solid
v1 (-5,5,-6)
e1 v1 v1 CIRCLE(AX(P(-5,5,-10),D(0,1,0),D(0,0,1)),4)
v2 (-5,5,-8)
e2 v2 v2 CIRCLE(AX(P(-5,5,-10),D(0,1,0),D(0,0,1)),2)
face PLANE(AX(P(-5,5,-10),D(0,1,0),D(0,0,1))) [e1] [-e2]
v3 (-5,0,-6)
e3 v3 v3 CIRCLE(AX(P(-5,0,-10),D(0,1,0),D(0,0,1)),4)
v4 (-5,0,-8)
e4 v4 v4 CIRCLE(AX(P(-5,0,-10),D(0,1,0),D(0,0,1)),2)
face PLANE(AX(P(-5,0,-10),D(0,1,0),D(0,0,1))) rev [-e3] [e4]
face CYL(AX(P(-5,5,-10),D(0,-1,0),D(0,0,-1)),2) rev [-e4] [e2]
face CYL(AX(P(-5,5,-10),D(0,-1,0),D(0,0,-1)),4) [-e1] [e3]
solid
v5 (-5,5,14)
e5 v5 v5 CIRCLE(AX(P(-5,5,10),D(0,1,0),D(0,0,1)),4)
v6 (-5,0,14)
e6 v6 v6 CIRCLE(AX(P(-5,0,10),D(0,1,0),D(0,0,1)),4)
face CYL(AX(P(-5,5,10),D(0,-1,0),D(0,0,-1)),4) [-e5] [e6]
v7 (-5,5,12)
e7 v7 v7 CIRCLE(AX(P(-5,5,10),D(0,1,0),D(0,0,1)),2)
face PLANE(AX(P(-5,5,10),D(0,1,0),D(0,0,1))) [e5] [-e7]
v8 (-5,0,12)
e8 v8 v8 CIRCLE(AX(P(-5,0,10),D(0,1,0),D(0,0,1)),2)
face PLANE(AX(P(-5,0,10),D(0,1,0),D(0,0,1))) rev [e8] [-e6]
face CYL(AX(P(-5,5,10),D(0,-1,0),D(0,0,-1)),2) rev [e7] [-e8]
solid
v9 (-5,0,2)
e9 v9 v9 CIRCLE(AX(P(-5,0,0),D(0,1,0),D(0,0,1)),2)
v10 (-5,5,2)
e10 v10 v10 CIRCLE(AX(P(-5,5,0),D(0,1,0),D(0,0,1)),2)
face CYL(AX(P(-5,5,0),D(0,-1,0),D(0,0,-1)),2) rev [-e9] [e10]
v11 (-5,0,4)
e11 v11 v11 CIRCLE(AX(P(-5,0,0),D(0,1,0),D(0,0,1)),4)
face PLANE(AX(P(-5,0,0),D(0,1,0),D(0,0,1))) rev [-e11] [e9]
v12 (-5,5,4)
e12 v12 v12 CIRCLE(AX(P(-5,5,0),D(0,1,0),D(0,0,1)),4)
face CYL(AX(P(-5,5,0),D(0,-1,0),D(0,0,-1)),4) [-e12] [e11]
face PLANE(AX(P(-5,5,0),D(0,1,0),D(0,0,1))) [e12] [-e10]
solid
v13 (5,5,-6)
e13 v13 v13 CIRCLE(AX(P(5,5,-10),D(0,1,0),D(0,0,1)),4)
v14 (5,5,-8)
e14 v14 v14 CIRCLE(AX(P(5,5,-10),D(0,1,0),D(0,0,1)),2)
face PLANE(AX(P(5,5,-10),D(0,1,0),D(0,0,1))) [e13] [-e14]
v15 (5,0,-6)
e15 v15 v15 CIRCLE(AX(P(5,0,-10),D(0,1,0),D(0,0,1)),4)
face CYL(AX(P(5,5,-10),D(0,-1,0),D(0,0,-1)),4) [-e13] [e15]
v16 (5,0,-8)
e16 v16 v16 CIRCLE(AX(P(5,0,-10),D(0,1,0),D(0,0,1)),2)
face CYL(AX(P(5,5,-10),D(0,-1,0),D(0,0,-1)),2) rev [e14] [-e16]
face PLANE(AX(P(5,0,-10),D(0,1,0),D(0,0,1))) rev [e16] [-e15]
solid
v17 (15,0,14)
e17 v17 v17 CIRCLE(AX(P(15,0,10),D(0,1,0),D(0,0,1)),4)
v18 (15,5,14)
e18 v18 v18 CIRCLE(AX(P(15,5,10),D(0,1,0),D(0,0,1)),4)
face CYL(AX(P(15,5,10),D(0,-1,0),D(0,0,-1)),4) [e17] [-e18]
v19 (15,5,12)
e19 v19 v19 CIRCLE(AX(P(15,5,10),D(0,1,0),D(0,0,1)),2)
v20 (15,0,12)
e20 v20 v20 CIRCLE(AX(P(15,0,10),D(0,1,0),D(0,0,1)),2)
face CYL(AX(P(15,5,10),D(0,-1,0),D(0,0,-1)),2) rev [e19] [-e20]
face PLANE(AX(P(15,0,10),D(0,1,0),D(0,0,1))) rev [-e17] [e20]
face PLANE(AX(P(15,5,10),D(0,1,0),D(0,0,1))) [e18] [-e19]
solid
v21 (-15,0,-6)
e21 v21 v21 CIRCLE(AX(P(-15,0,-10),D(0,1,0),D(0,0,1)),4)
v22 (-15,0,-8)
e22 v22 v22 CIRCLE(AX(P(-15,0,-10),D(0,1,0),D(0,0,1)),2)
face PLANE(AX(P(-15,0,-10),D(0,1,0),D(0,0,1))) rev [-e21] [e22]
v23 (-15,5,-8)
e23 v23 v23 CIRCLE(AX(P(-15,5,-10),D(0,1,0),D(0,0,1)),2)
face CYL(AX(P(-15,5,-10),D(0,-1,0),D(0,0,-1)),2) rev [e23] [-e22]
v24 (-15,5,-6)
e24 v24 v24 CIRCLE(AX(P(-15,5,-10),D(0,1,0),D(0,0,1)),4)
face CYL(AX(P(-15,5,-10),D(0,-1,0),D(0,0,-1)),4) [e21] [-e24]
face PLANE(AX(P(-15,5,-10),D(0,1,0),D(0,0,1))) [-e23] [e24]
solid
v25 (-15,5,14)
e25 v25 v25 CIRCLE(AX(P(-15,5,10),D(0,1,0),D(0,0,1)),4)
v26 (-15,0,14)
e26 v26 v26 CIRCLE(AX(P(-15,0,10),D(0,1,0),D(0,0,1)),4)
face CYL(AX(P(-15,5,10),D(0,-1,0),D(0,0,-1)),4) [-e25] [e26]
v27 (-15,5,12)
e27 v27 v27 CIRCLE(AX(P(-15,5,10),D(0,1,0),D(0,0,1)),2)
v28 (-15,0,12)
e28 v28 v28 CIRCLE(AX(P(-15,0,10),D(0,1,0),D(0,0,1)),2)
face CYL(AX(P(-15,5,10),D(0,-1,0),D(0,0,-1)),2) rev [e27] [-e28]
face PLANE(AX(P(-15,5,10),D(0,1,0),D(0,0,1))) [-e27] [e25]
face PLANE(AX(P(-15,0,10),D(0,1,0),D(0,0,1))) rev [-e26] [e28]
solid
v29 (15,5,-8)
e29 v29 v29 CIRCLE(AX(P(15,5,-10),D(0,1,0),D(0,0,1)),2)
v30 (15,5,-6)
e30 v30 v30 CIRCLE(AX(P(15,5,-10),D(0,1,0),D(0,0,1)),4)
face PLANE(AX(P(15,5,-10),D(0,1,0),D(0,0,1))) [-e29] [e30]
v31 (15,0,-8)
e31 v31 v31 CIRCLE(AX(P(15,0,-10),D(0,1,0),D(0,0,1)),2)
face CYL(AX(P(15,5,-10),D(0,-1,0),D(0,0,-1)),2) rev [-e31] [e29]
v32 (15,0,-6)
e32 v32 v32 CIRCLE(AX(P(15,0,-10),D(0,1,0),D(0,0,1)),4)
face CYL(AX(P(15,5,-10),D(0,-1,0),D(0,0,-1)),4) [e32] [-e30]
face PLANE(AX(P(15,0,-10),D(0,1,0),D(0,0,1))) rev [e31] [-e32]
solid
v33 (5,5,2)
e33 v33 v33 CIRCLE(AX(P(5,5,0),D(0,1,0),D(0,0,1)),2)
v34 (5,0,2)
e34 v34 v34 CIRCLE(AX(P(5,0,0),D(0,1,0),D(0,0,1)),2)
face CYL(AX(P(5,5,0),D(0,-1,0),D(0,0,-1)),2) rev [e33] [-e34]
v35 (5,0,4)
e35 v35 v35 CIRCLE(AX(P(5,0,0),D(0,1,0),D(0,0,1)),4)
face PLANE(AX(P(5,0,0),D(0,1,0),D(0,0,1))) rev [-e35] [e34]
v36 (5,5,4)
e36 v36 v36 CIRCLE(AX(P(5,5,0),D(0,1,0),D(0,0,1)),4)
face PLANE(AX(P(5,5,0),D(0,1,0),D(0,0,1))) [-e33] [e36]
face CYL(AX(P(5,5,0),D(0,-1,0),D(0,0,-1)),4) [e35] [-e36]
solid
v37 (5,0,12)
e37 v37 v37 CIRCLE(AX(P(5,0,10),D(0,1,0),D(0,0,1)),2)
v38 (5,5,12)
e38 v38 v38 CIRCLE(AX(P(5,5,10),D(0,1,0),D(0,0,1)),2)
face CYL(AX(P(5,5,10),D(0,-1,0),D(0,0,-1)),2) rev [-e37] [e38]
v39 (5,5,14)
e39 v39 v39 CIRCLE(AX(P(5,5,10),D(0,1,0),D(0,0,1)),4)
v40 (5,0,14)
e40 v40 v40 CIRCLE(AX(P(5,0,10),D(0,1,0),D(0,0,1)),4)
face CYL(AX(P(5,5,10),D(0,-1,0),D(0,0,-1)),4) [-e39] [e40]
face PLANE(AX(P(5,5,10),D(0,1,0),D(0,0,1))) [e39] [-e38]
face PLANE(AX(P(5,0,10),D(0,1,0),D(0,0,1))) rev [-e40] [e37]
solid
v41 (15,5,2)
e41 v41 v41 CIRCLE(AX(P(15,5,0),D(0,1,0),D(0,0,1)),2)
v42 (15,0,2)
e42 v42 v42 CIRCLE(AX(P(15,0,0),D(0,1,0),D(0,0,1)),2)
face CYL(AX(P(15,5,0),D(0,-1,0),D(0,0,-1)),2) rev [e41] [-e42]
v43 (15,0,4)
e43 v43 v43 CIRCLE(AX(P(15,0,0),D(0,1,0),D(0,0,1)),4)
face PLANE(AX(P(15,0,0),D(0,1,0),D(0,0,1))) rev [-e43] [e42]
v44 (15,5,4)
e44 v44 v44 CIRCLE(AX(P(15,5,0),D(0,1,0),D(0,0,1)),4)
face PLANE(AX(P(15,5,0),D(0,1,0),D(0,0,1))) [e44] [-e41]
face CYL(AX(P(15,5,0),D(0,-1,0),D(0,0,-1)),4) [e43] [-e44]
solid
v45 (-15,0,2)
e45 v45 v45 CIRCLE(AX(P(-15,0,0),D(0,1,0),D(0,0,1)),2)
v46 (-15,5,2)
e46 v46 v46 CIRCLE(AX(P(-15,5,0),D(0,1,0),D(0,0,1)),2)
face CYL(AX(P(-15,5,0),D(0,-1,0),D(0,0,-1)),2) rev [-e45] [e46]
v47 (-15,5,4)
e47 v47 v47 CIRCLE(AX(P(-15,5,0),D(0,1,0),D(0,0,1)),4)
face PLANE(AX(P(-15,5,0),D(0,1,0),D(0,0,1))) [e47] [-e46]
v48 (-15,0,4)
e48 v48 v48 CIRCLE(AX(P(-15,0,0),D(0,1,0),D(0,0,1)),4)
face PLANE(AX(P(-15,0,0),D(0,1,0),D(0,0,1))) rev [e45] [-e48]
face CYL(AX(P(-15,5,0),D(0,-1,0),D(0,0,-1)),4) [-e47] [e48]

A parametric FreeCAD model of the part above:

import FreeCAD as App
import Part
import Sketcher
Q = App.Units.Quantity

doc = App.newDocument("Part")
body = doc.addObject("PartDesign::Body", "Body")

# Sketch on XZ plane
sketch1 = body.newObject("Sketcher::SketchObject", "Sketch")
sketch1.AttachmentSupport = (doc.getObject("XZ_Plane"), [""])
sketch1.MapMode = "FlatFace"
sketch1.addGeometry(Part.Circle(App.Vector(-15, 10, 0), App.Vector(0, 0, 1), 4), False)
sketch1.addGeometry(Part.Circle(App.Vector(-15, 10, 0), App.Vector(0, 0, 1), 2), False)
sketch1.addConstraint(Sketcher.Constraint("Coincident", 1, 3, 0, 3))
sketch1.addConstraint(Sketcher.Constraint("Diameter", 0, Q("8 mm")))
sketch1.addConstraint(Sketcher.Constraint("Diameter", 1, Q("4 mm")))
sketch1.addConstraint(Sketcher.Constraint("DistanceX", 0, 3, -1, 1, Q("15 mm")))
sketch1.addConstraint(Sketcher.Constraint("DistanceY", -1, 1, 0, 3, Q("10 mm")))
pad1 = body.newObject("PartDesign::Pad", "Pad")
pad1.Profile = sketch1
pad1.Length = 5
pad1.Reversed = True
body2 = doc.addObject("PartDesign::Body", "Body001")

# Sketch on XZ plane
sketch2 = body2.newObject("Sketcher::SketchObject", "Sketch001")
sketch2.AttachmentSupport = (doc.getObject("XZ_Plane001"), [""])
sketch2.MapMode = "FlatFace"
sketch2.addGeometry(Part.Circle(App.Vector(-5, 10, 0), App.Vector(0, 0, 1), 4), False)
sketch2.addGeometry(Part.Circle(App.Vector(-5, 10, 0), App.Vector(0, 0, 1), 2), False)
sketch2.addConstraint(Sketcher.Constraint("Coincident", 1, 3, 0, 3))
sketch2.addConstraint(Sketcher.Constraint("Diameter", 0, Q("8 mm")))
sketch2.addConstraint(Sketcher.Constraint("Diameter", 1, Q("4 mm")))
sketch2.addConstraint(Sketcher.Constraint("DistanceX", 0, 3, -1, 1, Q("5 mm")))
sketch2.addConstraint(Sketcher.Constraint("DistanceY", -1, 1, 0, 3, Q("10 mm")))
pad2 = body2.newObject("PartDesign::Pad", "Pad001")
pad2.Profile = sketch2
pad2.Length = 5
pad2.Reversed = True
body3 = doc.addObject("PartDesign::Body", "Body002")

# Sketch on XZ plane
sketch3 = body3.newObject("Sketcher::SketchObject", "Sketch002")
sketch3.AttachmentSupport = (doc.getObject("XZ_Plane002"), [""])
sketch3.MapMode = "FlatFace"
sketch3.addGeometry(Part.Circle(App.Vector(5, 10, 0), App.Vector(0, 0, 1), 4), False)
sketch3.addGeometry(Part.Circle(App.Vector(5, 10, 0), App.Vector(0, 0, 1), 2), False)
sketch3.addConstraint(Sketcher.Constraint("Coincident", 1, 3, 0, 3))
sketch3.addConstraint(Sketcher.Constraint("Diameter", 0, Q("8 mm")))
sketch3.addConstraint(Sketcher.Constraint("Diameter", 1, Q("4 mm")))
sketch3.addConstraint(Sketcher.Constraint("DistanceX", -1, 1, 0, 3, Q("5 mm")))
sketch3.addConstraint(Sketcher.Constraint("DistanceY", -1, 1, 0, 3, Q("10 mm")))
pad3 = body3.newObject("PartDesign::Pad", "Pad002")
pad3.Profile = sketch3
pad3.Length = 5
pad3.Reversed = True
body4 = doc.addObject("PartDesign::Body", "Body003")

# Sketch on XZ plane
sketch4 = body4.newObject("Sketcher::SketchObject", "Sketch003")
sketch4.AttachmentSupport = (doc.getObject("XZ_Plane003"), [""])
sketch4.MapMode = "FlatFace"
sketch4.addGeometry(Part.Circle(App.Vector(15, 10, 0), App.Vector(0, 0, 1), 4), False)
sketch4.addGeometry(Part.Circle(App.Vector(15, 10, 0), App.Vector(0, 0, 1), 2), False)
sketch4.addConstraint(Sketcher.Constraint("Coincident", 1, 3, 0, 3))
sketch4.addConstraint(Sketcher.Constraint("Diameter", 0, Q("8 mm")))
sketch4.addConstraint(Sketcher.Constraint("Diameter", 1, Q("4 mm")))
sketch4.addConstraint(Sketcher.Constraint("DistanceX", -1, 1, 0, 3, Q("15 mm")))
sketch4.addConstraint(Sketcher.Constraint("DistanceY", -1, 1, 0, 3, Q("10 mm")))
pad4 = body4.newObject("PartDesign::Pad", "Pad003")
pad4.Profile = sketch4
pad4.Length = 5
pad4.Reversed = True
body5 = doc.addObject("PartDesign::Body", "Body004")

# Sketch on XZ plane
sketch5 = body5.newObject("Sketcher::SketchObject", "Sketch004")
sketch5.AttachmentSupport = (doc.getObject("XZ_Plane004"), [""])
sketch5.MapMode = "FlatFace"
sketch5.addGeometry(Part.Circle(App.Vector(-5, 0, 0), App.Vector(0, 0, 1), 4), False)
sketch5.addGeometry(Part.Circle(App.Vector(-5, 0, 0), App.Vector(0, 0, 1), 2), False)
sketch5.addConstraint(Sketcher.Constraint("Coincident", 1, 3, 0, 3))
sketch5.addConstraint(Sketcher.Constraint("PointOnObject", 0, 3, -1))
sketch5.addConstraint(Sketcher.Constraint("Diameter", 0, Q("8 mm")))
sketch5.addConstraint(Sketcher.Constraint("Diameter", 1, Q("4 mm")))
sketch5.addConstraint(Sketcher.Constraint("DistanceX", 0, 3, -1, 1, Q("5 mm")))
pad5 = body5.newObject("PartDesign::Pad", "Pad004")
pad5.Profile = sketch5
pad5.Length = 5
pad5.Reversed = True
body6 = doc.addObject("PartDesign::Body", "Body005")

# Sketch on XZ plane
sketch6 = body6.newObject("Sketcher::SketchObject", "Sketch005")
sketch6.AttachmentSupport = (doc.getObject("XZ_Plane005"), [""])
sketch6.MapMode = "FlatFace"
sketch6.addGeometry(Part.Circle(App.Vector(5, 0, 0), App.Vector(0, 0, 1), 4), False)
sketch6.addGeometry(Part.Circle(App.Vector(5, 0, 0), App.Vector(0, 0, 1), 2), False)
sketch6.addConstraint(Sketcher.Constraint("Coincident", 1, 3, 0, 3))
sketch6.addConstraint(Sketcher.Constraint("PointOnObject", 0, 3, -1))
sketch6.addConstraint(Sketcher.Constraint("Diameter", 0, Q("8 mm")))
sketch6.addConstraint(Sketcher.Constraint("Diameter", 1, Q("4 mm")))
sketch6.addConstraint(Sketcher.Constraint("DistanceX", -1, 1, 0, 3, Q("5 mm")))
pad6 = body6.newObject("PartDesign::Pad", "Pad005")
pad6.Profile = sketch6
pad6.Length = 5
pad6.Reversed = True
body7 = doc.addObject("PartDesign::Body", "Body006")

# Sketch on XZ plane
sketch7 = body7.newObject("Sketcher::SketchObject", "Sketch006")
sketch7.AttachmentSupport = (doc.getObject("XZ_Plane006"), [""])
sketch7.MapMode = "FlatFace"
sketch7.addGeometry(Part.Circle(App.Vector(15, 0, 0), App.Vector(0, 0, 1), 4), False)
sketch7.addGeometry(Part.Circle(App.Vector(15, 0, 0), App.Vector(0, 0, 1), 2), False)
sketch7.addConstraint(Sketcher.Constraint("Coincident", 1, 3, 0, 3))
sketch7.addConstraint(Sketcher.Constraint("PointOnObject", 0, 3, -1))
sketch7.addConstraint(Sketcher.Constraint("Diameter", 0, Q("8 mm")))
sketch7.addConstraint(Sketcher.Constraint("Diameter", 1, Q("4 mm")))
sketch7.addConstraint(Sketcher.Constraint("DistanceX", -1, 1, 0, 3, Q("15 mm")))
pad7 = body7.newObject("PartDesign::Pad", "Pad006")
pad7.Profile = sketch7
pad7.Length = 5
pad7.Reversed = True
body8 = doc.addObject("PartDesign::Body", "Body007")

# Sketch on XZ plane
sketch8 = body8.newObject("Sketcher::SketchObject", "Sketch007")
sketch8.AttachmentSupport = (doc.getObject("XZ_Plane007"), [""])
sketch8.MapMode = "FlatFace"
sketch8.addGeometry(Part.Circle(App.Vector(-5, -10, 0), App.Vector(0, 0, 1), 4), False)
sketch8.addGeometry(Part.Circle(App.Vector(-5, -10, 0), App.Vector(0, 0, 1), 2), False)
sketch8.addConstraint(Sketcher.Constraint("Coincident", 1, 3, 0, 3))
sketch8.addConstraint(Sketcher.Constraint("Diameter", 0, Q("8 mm")))
sketch8.addConstraint(Sketcher.Constraint("Diameter", 1, Q("4 mm")))
sketch8.addConstraint(Sketcher.Constraint("DistanceX", 0, 3, -1, 1, Q("5 mm")))
sketch8.addConstraint(Sketcher.Constraint("DistanceY", 0, 3, -1, 1, Q("10 mm")))
pad8 = body8.newObject("PartDesign::Pad", "Pad007")
pad8.Profile = sketch8
pad8.Length = 5
pad8.Reversed = True
body9 = doc.addObject("PartDesign::Body", "Body008")

# Sketch on XZ plane
sketch9 = body9.newObject("Sketcher::SketchObject", "Sketch008")
sketch9.AttachmentSupport = (doc.getObject("XZ_Plane008"), [""])
sketch9.MapMode = "FlatFace"
sketch9.addGeometry(Part.Circle(App.Vector(5, -10, 0), App.Vector(0, 0, 1), 4), False)
sketch9.addGeometry(Part.Circle(App.Vector(5, -10, 0), App.Vector(0, 0, 1), 2), False)
sketch9.addConstraint(Sketcher.Constraint("Coincident", 1, 3, 0, 3))
sketch9.addConstraint(Sketcher.Constraint("Diameter", 0, Q("8 mm")))
sketch9.addConstraint(Sketcher.Constraint("Diameter", 1, Q("4 mm")))
sketch9.addConstraint(Sketcher.Constraint("DistanceX", -1, 1, 0, 3, Q("5 mm")))
sketch9.addConstraint(Sketcher.Constraint("DistanceY", 0, 3, -1, 1, Q("10 mm")))
pad9 = body9.newObject("PartDesign::Pad", "Pad008")
pad9.Profile = sketch9
pad9.Length = 5
pad9.Reversed = True
body10 = doc.addObject("PartDesign::Body", "Body009")

# Sketch on XZ plane
sketch10 = body10.newObject("Sketcher::SketchObject", "Sketch009")
sketch10.AttachmentSupport = (doc.getObject("XZ_Plane009"), [""])
sketch10.MapMode = "FlatFace"
sketch10.addGeometry(Part.Circle(App.Vector(15, -10, 0), App.Vector(0, 0, 1), 4), False)
sketch10.addGeometry(Part.Circle(App.Vector(15, -10, 0), App.Vector(0, 0, 1), 2), False)
sketch10.addConstraint(Sketcher.Constraint("Coincident", 1, 3, 0, 3))
sketch10.addConstraint(Sketcher.Constraint("Diameter", 0, Q("8 mm")))
sketch10.addConstraint(Sketcher.Constraint("Diameter", 1, Q("4 mm")))
sketch10.addConstraint(Sketcher.Constraint("DistanceX", -1, 1, 0, 3, Q("15 mm")))
sketch10.addConstraint(Sketcher.Constraint("DistanceY", 0, 3, -1, 1, Q("10 mm")))
pad10 = body10.newObject("PartDesign::Pad", "Pad009")
pad10.Profile = sketch10
pad10.Length = 5
pad10.Reversed = True
body11 = doc.addObject("PartDesign::Body", "Body010")

# Sketch on XZ plane
sketch11 = body11.newObject("Sketcher::SketchObject", "Sketch010")
sketch11.AttachmentSupport = (doc.getObject("XZ_Plane010"), [""])
sketch11.MapMode = "FlatFace"
sketch11.addGeometry(Part.Circle(App.Vector(-15, 0, 0), App.Vector(0, 0, 1), 4), False)
sketch11.addGeometry(Part.Circle(App.Vector(-15, 0, 0), App.Vector(0, 0, 1), 2), False)
sketch11.addConstraint(Sketcher.Constraint("Coincident", 1, 3, 0, 3))
sketch11.addConstraint(Sketcher.Constraint("PointOnObject", 0, 3, -1))
sketch11.addConstraint(Sketcher.Constraint("Diameter", 0, Q("8 mm")))
sketch11.addConstraint(Sketcher.Constraint("Diameter", 1, Q("4 mm")))
sketch11.addConstraint(Sketcher.Constraint("DistanceX", 0, 3, -1, 1, Q("15 mm")))
pad11 = body11.newObject("PartDesign::Pad", "Pad010")
pad11.Profile = sketch11
pad11.Length = 5
pad11.Reversed = True
body12 = doc.addObject("PartDesign::Body", "Body011")

# Sketch on XZ plane
sketch12 = body12.newObject("Sketcher::SketchObject", "Sketch011")
sketch12.AttachmentSupport = (doc.getObject("XZ_Plane011"), [""])
sketch12.MapMode = "FlatFace"
sketch12.addGeometry(Part.Circle(App.Vector(-15, -10, 0), App.Vector(0, 0, 1), 4), False)
sketch12.addGeometry(Part.Circle(App.Vector(-15, -10, 0), App.Vector(0, 0, 1), 2), False)
sketch12.addConstraint(Sketcher.Constraint("Coincident", 1, 3, 0, 3))
sketch12.addConstraint(Sketcher.Constraint("Diameter", 0, Q("8 mm")))
sketch12.addConstraint(Sketcher.Constraint("Diameter", 1, Q("4 mm")))
sketch12.addConstraint(Sketcher.Constraint("DistanceX", 0, 3, -1, 1, Q("15 mm")))
sketch12.addConstraint(Sketcher.Constraint("DistanceY", 0, 3, -1, 1, Q("10 mm")))
pad12 = body12.newObject("PartDesign::Pad", "Pad011")
pad12.Profile = sketch12
pad12.Length = 5
pad12.Reversed = True

doc.recompute()
